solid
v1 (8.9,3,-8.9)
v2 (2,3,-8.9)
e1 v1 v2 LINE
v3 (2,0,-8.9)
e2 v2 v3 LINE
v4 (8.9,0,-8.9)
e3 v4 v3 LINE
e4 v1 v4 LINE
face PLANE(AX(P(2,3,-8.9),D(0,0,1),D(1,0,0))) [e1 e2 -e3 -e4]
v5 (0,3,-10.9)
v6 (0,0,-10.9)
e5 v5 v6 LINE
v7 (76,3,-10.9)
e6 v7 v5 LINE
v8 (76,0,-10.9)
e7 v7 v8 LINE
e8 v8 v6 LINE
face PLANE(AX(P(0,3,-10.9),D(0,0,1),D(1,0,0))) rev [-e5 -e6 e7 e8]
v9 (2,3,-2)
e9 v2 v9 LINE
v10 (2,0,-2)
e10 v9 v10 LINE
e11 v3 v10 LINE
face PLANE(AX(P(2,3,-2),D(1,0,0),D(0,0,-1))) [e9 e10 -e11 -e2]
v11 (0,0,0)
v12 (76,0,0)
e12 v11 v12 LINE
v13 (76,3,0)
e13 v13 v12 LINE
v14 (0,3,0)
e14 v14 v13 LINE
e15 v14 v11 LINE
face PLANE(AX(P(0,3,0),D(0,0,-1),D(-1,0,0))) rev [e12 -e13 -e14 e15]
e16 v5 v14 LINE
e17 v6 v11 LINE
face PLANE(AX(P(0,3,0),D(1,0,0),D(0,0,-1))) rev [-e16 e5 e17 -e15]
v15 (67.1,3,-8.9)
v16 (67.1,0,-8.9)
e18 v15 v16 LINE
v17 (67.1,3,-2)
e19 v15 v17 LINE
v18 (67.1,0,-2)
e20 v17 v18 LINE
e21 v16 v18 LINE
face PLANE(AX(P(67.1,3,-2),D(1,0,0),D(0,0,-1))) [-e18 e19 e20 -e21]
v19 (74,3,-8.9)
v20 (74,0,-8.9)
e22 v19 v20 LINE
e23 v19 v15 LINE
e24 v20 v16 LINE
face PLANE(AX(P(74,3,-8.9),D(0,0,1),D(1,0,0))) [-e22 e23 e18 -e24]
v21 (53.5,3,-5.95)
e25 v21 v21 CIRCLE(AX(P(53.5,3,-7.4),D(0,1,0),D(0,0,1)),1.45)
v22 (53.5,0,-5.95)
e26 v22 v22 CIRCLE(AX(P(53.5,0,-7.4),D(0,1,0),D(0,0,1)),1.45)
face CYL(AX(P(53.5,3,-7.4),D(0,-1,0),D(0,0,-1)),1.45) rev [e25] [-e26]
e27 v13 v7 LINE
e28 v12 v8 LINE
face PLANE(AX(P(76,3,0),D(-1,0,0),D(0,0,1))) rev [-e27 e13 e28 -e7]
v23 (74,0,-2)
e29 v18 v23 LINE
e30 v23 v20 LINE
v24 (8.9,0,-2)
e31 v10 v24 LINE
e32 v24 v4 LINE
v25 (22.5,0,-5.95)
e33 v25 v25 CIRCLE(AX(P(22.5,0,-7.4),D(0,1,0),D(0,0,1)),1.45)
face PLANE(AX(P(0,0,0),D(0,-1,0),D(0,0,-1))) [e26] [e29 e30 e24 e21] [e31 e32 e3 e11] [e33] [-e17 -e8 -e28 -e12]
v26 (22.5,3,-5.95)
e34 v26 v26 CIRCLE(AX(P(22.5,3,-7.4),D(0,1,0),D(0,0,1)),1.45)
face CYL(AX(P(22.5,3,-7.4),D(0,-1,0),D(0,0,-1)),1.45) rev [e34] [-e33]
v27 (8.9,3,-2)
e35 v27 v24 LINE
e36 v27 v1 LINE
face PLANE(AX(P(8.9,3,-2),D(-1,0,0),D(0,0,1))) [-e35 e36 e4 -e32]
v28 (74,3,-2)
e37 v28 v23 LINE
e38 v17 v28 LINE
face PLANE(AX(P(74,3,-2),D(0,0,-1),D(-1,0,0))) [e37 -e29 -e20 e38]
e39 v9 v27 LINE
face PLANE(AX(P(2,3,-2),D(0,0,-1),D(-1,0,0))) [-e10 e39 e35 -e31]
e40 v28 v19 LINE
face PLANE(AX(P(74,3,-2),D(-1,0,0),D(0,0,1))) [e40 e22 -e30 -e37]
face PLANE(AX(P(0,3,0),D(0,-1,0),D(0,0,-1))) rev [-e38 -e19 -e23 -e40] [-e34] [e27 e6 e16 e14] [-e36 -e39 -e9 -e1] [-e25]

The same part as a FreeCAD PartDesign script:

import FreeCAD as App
import Part
import Sketcher
from FreeCAD import Vector

doc = App.newDocument("Part")
body = doc.addObject("PartDesign::Body", "Body")

# Sketch on XZ plane
sketch1 = doc.addObject("Sketcher::SketchObject", "Sketch")
body.addObject(sketch1)
sketch1.AttachmentSupport = (doc.XZ_Plane, [""])
sketch1.MapMode = "FlatFace"
sketch1.addGeometry([
    Part.LineSegment(Vector(0, -10.9, 0), Vector(0, 0, 0)),  # 0
    Part.LineSegment(Vector(0, 0, 0), Vector(76, 0, 0)),  # 1
    Part.LineSegment(Vector(76, 0, 0), Vector(76, -10.9, 0)),  # 2
    Part.LineSegment(Vector(76, -10.9, 0), Vector(0, -10.9, 0)),  # 3
    Part.LineSegment(Vector(8.9, -2, 0), Vector(2, -2, 0)),  # 4
    Part.LineSegment(Vector(2, -2, 0), Vector(2, -8.9, 0)),  # 5
    Part.LineSegment(Vector(2, -8.9, 0), Vector(8.9, -8.9, 0)),  # 6
    Part.LineSegment(Vector(8.9, -8.9, 0), Vector(8.9, -2, 0)),  # 7
    Part.Circle(Vector(22.5, -7.4, 0), Vector(0, 0, 1), 1.4),  # 8
    Part.LineSegment(Vector(74, -2, 0), Vector(67.1, -2, 0)),  # 9
    Part.LineSegment(Vector(67.1, -2, 0), Vector(67.1, -8.9, 0)),  # 10
    Part.LineSegment(Vector(67.1, -8.9, 0), Vector(74, -8.9, 0)),  # 11
    Part.LineSegment(Vector(74, -8.9, 0), Vector(74, -2, 0)),  # 12
    Part.Circle(Vector(53.5, -7.4, 0), Vector(0, 0, 1), 1.4),  # 13
], False)
sketch1.addConstraint([
    Sketcher.Constraint("Coincident", 0, 2, 1, 1),
    Sketcher.Constraint("Coincident", 1, 2, 2, 1),
    Sketcher.Constraint("Coincident", 2, 2, 3, 1),
    Sketcher.Constraint("Coincident", 3, 2, 0, 1),
    Sketcher.Constraint("Coincident", 4, 2, 5, 1),
    Sketcher.Constraint("Coincident", 5, 2, 6, 1),
    Sketcher.Constraint("Coincident", 6, 2, 7, 1),
    Sketcher.Constraint("Coincident", 7, 2, 4, 1),
    Sketcher.Constraint("Coincident", 9, 2, 10, 1),
    Sketcher.Constraint("Coincident", 10, 2, 11, 1),
    Sketcher.Constraint("Coincident", 11, 2, 12, 1),
    Sketcher.Constraint("Coincident", 12, 2, 9, 1),
    Sketcher.Constraint("Vertical", 0),
    Sketcher.Constraint("Horizontal", 1),
    Sketcher.Constraint("Vertical", 2),
    Sketcher.Constraint("Horizontal", 3),
    Sketcher.Constraint("Horizontal", 4),
    Sketcher.Constraint("Vertical", 5),
    Sketcher.Constraint("Horizontal", 6),
    Sketcher.Constraint("Vertical", 7),
    Sketcher.Constraint("Horizontal", 9),
    Sketcher.Constraint("Vertical", 10),
    Sketcher.Constraint("Horizontal", 11),
    Sketcher.Constraint("Vertical", 12),
    Sketcher.Constraint("Coincident", 0, 2, -1, 1),
    Sketcher.Constraint("Equal", 8, 13),
    Sketcher.Constraint("Horizontal", 8, 3, 13, 3),
    Sketcher.Constraint("Horizontal", 7, 2, 9, 2),
    Sketcher.Constraint("Horizontal", 6, 2, 10, 2),
    Sketcher.Constraint("Equal", 6, 9),
    Sketcher.Constraint("Equal", 11, 5),
    Sketcher.Constraint("Diameter", 8, 2.9),
    Sketcher.Constraint("DistanceX", 1, 1, 1, 2, 76.0),
    Sketcher.Constraint("DistanceX", 4, 2, 4, 1, 6.9),
    Sketcher.Constraint("DistanceY", 0, 1, 0, 2, 10.9),
    Sketcher.Constraint("DistanceX", -1, 1, 4, 2, 2.0),
    Sketcher.Constraint("DistanceY", 4, 2, -1, 1, 2.0),
    Sketcher.Constraint("DistanceX", -1, 1, 11, 2, 74.0),
    Sketcher.Constraint("DistanceX", 8, 3, 13, 3, 31.0),
    Sketcher.Constraint("DistanceX", -1, 1, 8, 3, 22.5),
    Sketcher.Constraint("DistanceY", 8, 3, -1, 1, 7.4),
])
pad1 = doc.addObject("PartDesign::Pad", "Pad")
body.addObject(pad1)
pad1.Profile = sketch1
pad1.Length = 3
pad1.Reversed = True

doc.recompute()
